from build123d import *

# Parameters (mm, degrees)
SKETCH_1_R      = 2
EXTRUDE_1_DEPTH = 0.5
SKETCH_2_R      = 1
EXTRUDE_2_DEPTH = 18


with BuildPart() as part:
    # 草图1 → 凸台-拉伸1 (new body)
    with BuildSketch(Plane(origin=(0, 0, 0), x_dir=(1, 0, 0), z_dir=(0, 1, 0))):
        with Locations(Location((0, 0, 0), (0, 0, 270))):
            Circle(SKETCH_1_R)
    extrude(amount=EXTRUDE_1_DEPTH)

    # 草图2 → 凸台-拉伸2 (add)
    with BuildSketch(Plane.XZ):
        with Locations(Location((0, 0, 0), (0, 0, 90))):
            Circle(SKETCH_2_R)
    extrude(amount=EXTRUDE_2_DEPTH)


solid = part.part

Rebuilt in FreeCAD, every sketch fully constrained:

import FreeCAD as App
import Part
import Sketcher
from FreeCAD import Vector
Q = App.Units.Quantity

doc = App.newDocument("Part")
body = doc.addObject("PartDesign::Body", "Body")

sketch1 = doc.addObject("Sketcher::SketchObject", "Sketch")
body.addObject(sketch1)
sketch1.AttachmentSupport = (doc.XZ_Plane, [""])
sketch1.MapMode = "FlatFace"
sketch1.addGeometry(Part.Circle(Vector(0, 0, 0), Vector(0, 0, 1), 2), False)
sketch1.addConstraint([
    Sketcher.Constraint("Coincident", 0, 3, -1, 1),
    Sketcher.Constraint("Diameter", 0, Q("4 mm")),
])
pad1 = doc.addObject("PartDesign::Pad", "Pad")
body.addObject(pad1)
pad1.Profile = sketch1
pad1.Length = 0.5
pad1.Reversed = True

sketch2 = doc.addObject("Sketcher::SketchObject", "Sketch001")
body.addObject(sketch2)
sketch2.AttachmentSupport = (doc.XZ_Plane, [""])
sketch2.MapMode = "FlatFace"
sketch2.addGeometry(Part.Circle(Vector(0, 0, 0), Vector(0, 0, 1), 1), False)
sketch2.addConstraint([
    Sketcher.Constraint("Coincident", 0, 3, -1, 1),
    Sketcher.Constraint("Diameter", 0, Q("2 mm")),
])
pad2 = doc.addObject("PartDesign::Pad", "Pad001")
body.addObject(pad2)
pad2.Profile = sketch2
pad2.Length = 18

doc.recompute()
